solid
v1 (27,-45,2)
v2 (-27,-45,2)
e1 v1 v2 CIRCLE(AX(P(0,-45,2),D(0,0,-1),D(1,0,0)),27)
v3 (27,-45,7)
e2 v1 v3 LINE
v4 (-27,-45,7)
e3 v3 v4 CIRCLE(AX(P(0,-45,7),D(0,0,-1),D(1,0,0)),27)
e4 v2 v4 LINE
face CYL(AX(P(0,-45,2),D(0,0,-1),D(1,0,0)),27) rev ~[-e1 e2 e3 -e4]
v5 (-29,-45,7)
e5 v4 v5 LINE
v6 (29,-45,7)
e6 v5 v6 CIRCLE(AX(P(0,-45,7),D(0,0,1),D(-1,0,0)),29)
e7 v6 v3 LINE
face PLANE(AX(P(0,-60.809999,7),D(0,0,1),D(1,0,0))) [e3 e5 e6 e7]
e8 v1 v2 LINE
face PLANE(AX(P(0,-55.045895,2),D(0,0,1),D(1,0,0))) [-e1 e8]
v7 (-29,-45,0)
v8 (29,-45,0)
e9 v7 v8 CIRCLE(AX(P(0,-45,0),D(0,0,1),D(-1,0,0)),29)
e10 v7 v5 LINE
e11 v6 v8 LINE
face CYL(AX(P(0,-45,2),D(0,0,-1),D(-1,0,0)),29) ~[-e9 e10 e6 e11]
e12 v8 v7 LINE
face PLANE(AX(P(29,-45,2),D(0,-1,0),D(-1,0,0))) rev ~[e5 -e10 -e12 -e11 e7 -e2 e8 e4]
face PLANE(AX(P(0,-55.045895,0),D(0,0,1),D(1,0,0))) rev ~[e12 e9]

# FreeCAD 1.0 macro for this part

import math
import FreeCAD as App
import Part
import Sketcher

doc = App.newDocument("Part")
params = doc.addObject("Spreadsheet::Sheet", "Params")
for row, (alias, value) in enumerate([
    ("sketch1_radius", "29 mm"),
    ("pad1_length", "2 mm"),
    ("sketch2_radius", "27 mm"),
    ("sketch2_radius2", "29 mm"),
    ("pad2_length", "5 mm"),
], start=1):
    params.set(f"A{row}", alias)
    params.set(f"B{row}", "=" + value)
    params.setAlias(f"B{row}", alias)

body = doc.addObject("PartDesign::Body", "Body")

sketch1 = body.newObject("Sketcher::SketchObject", "Sketch")
sketch1.AttachmentSupport = (doc.getObject("XY_Plane"), [""])
sketch1.MapMode = "FlatFace"
sketch1.addGeometry([
    Part.ArcOfCircle(Part.Circle(App.Vector(0, -45, 0), App.Vector(0, 0, 1), 29), math.radians(180), math.radians(360)),
    Part.LineSegment(App.Vector(29, -45, 0), App.Vector(-29, -45, 0)),
], False)
sketch1.addConstraint([
    Sketcher.Constraint("Coincident", 0, 1, 1, 2),
    Sketcher.Constraint("Coincident", 1, 1, 0, 2),
    Sketcher.Constraint("Horizontal", 1),
    Sketcher.Constraint("PointOnObject", 0, 3, -2),
    Sketcher.Constraint("Radius", 0, 29.0),
    Sketcher.Constraint("DistanceY", 0, 3, -1, 1, 45.0),
    Sketcher.Constraint("DistanceY", 0, 1, -1, 1, 45.0),
])
sketch1.setExpression("Constraints[4]", "Params.sketch1_radius")
pad1 = body.newObject("PartDesign::Pad", "Pad")
pad1.Profile = sketch1
pad1.setExpression("Length", "Params.pad1_length")

sketch2 = body.newObject("Sketcher::SketchObject", "Sketch001")
sketch2.AttachmentSupport = (doc.getObject("XY_Plane"), [""])
sketch2.MapMode = "FlatFace"
sketch2.AttachmentOffset = App.Placement(App.Vector(0, 0, 2), App.Rotation())
sketch2.addGeometry([
    Part.ArcOfCircle(Part.Circle(App.Vector(0, -45, 0), App.Vector(0, 0, 1), 27), math.radians(180), math.radians(360)),
    Part.LineSegment(App.Vector(-27, -45, 0), App.Vector(-29, -45, 0)),
    Part.ArcOfCircle(Part.Circle(App.Vector(0, -45, 0), App.Vector(0, 0, 1), 29), math.radians(180), math.radians(360)),
    Part.LineSegment(App.Vector(29, -45, 0), App.Vector(27, -45, 0)),
], False)
sketch2.addConstraint([
    Sketcher.Constraint("Coincident", 0, 1, 1, 1),
    Sketcher.Constraint("Coincident", 1, 2, 2, 1),
    Sketcher.Constraint("Coincident", 2, 2, 3, 1),
    Sketcher.Constraint("Coincident", 3, 2, 0, 2),
    Sketcher.Constraint("Horizontal", 1),
    Sketcher.Constraint("Horizontal", 3),
    Sketcher.Constraint("Coincident", 2, 3, 0, 3),
    Sketcher.Constraint("Symmetric", 1, 2, 2, 2, -2),
    Sketcher.Constraint("Horizontal", 2, 3, 0, 1),
    Sketcher.Constraint("Radius", 0, 27.0),
    Sketcher.Constraint("Radius", 2, 29.0),
    Sketcher.Constraint("DistanceY", 0, 3, -1, 1, 45.0),
])
sketch2.setExpression("Constraints[9]", "Params.sketch2_radius")
sketch2.setExpression("Constraints[10]", "Params.sketch2_radius2")
pad2 = body.newObject("PartDesign::Pad", "Pad001")
pad2.Profile = sketch2
pad2.setExpression("Length", "Params.pad2_length")

doc.recompute()
